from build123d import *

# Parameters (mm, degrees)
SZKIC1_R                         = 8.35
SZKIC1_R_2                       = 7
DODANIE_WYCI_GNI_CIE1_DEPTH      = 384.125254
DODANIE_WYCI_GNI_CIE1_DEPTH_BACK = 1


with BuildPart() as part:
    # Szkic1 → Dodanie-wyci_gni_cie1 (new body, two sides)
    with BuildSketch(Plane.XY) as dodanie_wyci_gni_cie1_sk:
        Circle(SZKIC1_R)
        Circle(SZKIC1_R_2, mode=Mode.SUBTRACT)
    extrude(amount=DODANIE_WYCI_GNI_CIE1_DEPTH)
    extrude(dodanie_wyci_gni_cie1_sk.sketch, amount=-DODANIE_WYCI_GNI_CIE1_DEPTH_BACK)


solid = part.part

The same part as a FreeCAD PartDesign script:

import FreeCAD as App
import Part
import Sketcher

doc = App.newDocument("Part")
body = doc.addObject("PartDesign::Body", "Body")

sketch1 = doc.addObject("Sketcher::SketchObject", "Sketch")
body.addObject(sketch1)
sketch1.AttachmentSupport = (doc.XY_Plane, [""])
sketch1.MapMode = "FlatFace"
sketch1.addGeometry([
    Part.Circle(App.Vector(0, 0, 0), App.Vector(0, 0, 1), 8.35),
    Part.Circle(App.Vector(0, 0, 0), App.Vector(0, 0, 1), 7),
], False)
sketch1.addConstraint([
    Sketcher.Constraint("Coincident", 0, 3, -1, 1),
    Sketcher.Constraint("Coincident", 1, 3, -1, 1),
    Sketcher.Constraint("Diameter", 1, 14.0),
    Sketcher.Constraint("Diameter", 0, 16.7),
])
pad1 = doc.addObject("PartDesign::Pad", "Pad")
body.addObject(pad1)
pad1.Profile = sketch1
pad1.Type = "TwoLengths"
pad1.Length = 384.125254
pad1.Length2 = 1

doc.recompute()
